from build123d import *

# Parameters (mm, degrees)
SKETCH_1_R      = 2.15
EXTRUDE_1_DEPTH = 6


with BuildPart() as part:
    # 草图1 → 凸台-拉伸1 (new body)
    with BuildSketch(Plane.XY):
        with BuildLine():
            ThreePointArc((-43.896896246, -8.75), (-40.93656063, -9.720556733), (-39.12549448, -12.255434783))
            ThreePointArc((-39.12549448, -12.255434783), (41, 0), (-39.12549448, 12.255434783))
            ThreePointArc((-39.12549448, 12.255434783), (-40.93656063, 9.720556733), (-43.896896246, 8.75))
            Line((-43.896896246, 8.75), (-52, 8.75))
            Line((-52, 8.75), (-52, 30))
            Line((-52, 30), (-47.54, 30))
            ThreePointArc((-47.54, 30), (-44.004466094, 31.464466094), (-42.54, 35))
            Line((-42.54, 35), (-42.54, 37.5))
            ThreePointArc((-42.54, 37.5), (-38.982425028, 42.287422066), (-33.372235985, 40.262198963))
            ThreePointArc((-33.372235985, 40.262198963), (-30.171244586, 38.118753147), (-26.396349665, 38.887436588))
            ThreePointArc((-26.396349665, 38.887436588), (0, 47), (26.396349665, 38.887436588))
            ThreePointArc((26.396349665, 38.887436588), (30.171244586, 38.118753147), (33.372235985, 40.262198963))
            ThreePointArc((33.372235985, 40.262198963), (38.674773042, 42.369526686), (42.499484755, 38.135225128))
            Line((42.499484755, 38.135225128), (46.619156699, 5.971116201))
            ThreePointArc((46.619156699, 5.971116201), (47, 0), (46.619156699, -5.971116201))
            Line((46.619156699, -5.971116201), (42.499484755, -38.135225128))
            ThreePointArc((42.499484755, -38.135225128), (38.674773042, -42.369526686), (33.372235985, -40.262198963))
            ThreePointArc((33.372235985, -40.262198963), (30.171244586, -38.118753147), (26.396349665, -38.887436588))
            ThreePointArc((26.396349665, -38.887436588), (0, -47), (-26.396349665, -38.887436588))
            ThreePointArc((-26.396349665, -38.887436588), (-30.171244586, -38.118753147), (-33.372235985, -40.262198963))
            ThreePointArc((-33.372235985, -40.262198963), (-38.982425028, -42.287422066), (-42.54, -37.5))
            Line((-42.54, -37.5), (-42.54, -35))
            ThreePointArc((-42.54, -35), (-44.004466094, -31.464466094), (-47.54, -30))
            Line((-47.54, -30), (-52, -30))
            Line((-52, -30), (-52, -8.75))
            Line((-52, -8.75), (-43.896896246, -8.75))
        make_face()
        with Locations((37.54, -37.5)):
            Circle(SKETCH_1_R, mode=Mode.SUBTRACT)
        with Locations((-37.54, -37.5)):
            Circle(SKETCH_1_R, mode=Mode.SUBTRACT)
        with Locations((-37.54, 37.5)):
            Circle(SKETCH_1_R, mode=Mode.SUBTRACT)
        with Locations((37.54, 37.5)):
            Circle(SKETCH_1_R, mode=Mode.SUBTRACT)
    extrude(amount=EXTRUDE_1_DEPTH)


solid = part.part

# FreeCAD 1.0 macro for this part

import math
import FreeCAD as App
import Part
import Sketcher

doc = App.newDocument("Part")
body = doc.addObject("PartDesign::Body", "Body")

sketch1 = body.newObject("Sketcher::SketchObject", "Sketch")
sketch1.AttachmentSupport = (doc.getObject("XY_Plane"), [""])
sketch1.MapMode = "FlatFace"
sketch1.addGeometry(Part.ArcOfCircle(Part.Circle(App.Vector(-43.9, -13.8, 0), App.Vector(0, 0, 1), 5), math.radians(17), math.radians(90)), False)
sketch1.addGeometry(Part.LineSegment(App.Vector(-43.9, -8.8, 0), App.Vector(-52, -8.8, 0)), False)
sketch1.addGeometry(Part.LineSegment(App.Vector(-52, -8.8, 0), App.Vector(-52, -30, 0)), False)
sketch1.addGeometry(Part.LineSegment(App.Vector(-52, -30, 0), App.Vector(-47.5, -30, 0)), False)
sketch1.addGeometry(Part.ArcOfCircle(Part.Circle(App.Vector(-47.5, -35, 0), App.Vector(0, 0, 1), 5), math.radians(0), math.radians(90)), False)
sketch1.addGeometry(Part.LineSegment(App.Vector(-42.5, -35, 0), App.Vector(-42.5, -37.5, 0)), False)
sketch1.addGeometry(Part.ArcOfCircle(Part.Circle(App.Vector(-37.5, -37.5, 0), App.Vector(0, 0, 1), 5), math.radians(180), math.radians(326)), False)
sketch1.addGeometry(Part.ArcOfCircle(Part.Circle(App.Vector(-29.2, -43, 0), App.Vector(0, 0, 1), 5), math.radians(56), math.radians(146)), False)
sketch1.addGeometry(Part.ArcOfCircle(Part.Circle(App.Vector(0, 0, 0), App.Vector(0, 0, 1), 47), math.radians(-124), math.radians(-56)), False)
sketch1.addGeometry(Part.ArcOfCircle(Part.Circle(App.Vector(29.2, -43, 0), App.Vector(0, 0, 1), 5), math.radians(34), math.radians(124)), False)
sketch1.addGeometry(Part.ArcOfCircle(Part.Circle(App.Vector(37.5, -37.5, 0), App.Vector(0, 0, 1), 5), math.radians(-146), math.radians(-7)), False)
sketch1.addGeometry(Part.LineSegment(App.Vector(42.5, -38.1, 0), App.Vector(46.6, -6, 0)), False)
sketch1.addGeometry(Part.ArcOfCircle(Part.Circle(App.Vector(0, 0, 0), App.Vector(0, 0, 1), 47), math.radians(-7.3), math.radians(7.3)), False)
sketch1.addGeometry(Part.LineSegment(App.Vector(46.6, 6, 0), App.Vector(42.5, 38.1, 0)), False)
sketch1.addGeometry(Part.ArcOfCircle(Part.Circle(App.Vector(37.5, 37.5, 0), App.Vector(0, 0, 1), 5), math.radians(7), math.radians(146)), False)
sketch1.addGeometry(Part.ArcOfCircle(Part.Circle(App.Vector(29.2, 43, 0), App.Vector(0, 0, 1), 5), math.radians(-124), math.radians(-34)), False)
sketch1.addGeometry(Part.ArcOfCircle(Part.Circle(App.Vector(0, 0, 0), App.Vector(0, 0, 1), 47), math.radians(56), math.radians(124)), False)
sketch1.addGeometry(Part.ArcOfCircle(Part.Circle(App.Vector(-29.2, 43, 0), App.Vector(0, 0, 1), 5), math.radians(-146), math.radians(-56)), False)
sketch1.addGeometry(Part.ArcOfCircle(Part.Circle(App.Vector(-37.5, 37.5, 0), App.Vector(0, 0, 1), 5), math.radians(34), math.radians(180)), False)
sketch1.addGeometry(Part.LineSegment(App.Vector(-42.5, 37.5, 0), App.Vector(-42.5, 35, 0)), False)
sketch1.addGeometry(Part.ArcOfCircle(Part.Circle(App.Vector(-47.5, 35, 0), App.Vector(0, 0, 1), 5), math.radians(-90), math.radians(0)), False)
sketch1.addGeometry(Part.LineSegment(App.Vector(-47.5, 30, 0), App.Vector(-52, 30, 0)), False)
sketch1.addGeometry(Part.LineSegment(App.Vector(-52, 30, 0), App.Vector(-52, 8.8, 0)), False)
sketch1.addGeometry(Part.LineSegment(App.Vector(-52, 8.8, 0), App.Vector(-43.9, 8.8, 0)), False)
sketch1.addGeometry(Part.ArcOfCircle(Part.Circle(App.Vector(-43.9, 13.8, 0), App.Vector(0, 0, 1), 5), math.radians(-90), math.radians(-17)), False)
sketch1.addGeometry(Part.ArcOfCircle(Part.Circle(App.Vector(0, 0, 0), App.Vector(0, 0, 1), 41), math.radians(-163), math.radians(163)), False)
sketch1.addGeometry(Part.Circle(App.Vector(37.5, -37.5, 0), App.Vector(0, 0, 1), 2.1), False)
sketch1.addGeometry(Part.Circle(App.Vector(-37.5, -37.5, 0), App.Vector(0, 0, 1), 2.1), False)
sketch1.addGeometry(Part.Circle(App.Vector(37.5, 37.5, 0), App.Vector(0, 0, 1), 2.1), False)
sketch1.addGeometry(Part.Circle(App.Vector(-37.5, 37.5, 0), App.Vector(0, 0, 1), 2.1), False)
sketch1.addConstraint(Sketcher.Constraint("Tangent", 0, 2, 1, 1))
sketch1.addConstraint(Sketcher.Constraint("Coincident", 1, 2, 2, 1))
sketch1.addConstraint(Sketcher.Constraint("Coincident", 2, 2, 3, 1))
sketch1.addConstraint(Sketcher.Constraint("Tangent", 3, 2, 4, 2))
sketch1.addConstraint(Sketcher.Constraint("Tangent", 4, 1, 5, 1))
sketch1.addConstraint(Sketcher.Constraint("Tangent", 5, 2, 6, 1))
sketch1.addConstraint(Sketcher.Constraint("Tangent", 6, 2, 7, 2))
sketch1.addConstraint(Sketcher.Constraint("Tangent", 7, 1, 8, 1))
sketch1.addConstraint(Sketcher.Constraint("Tangent", 8, 2, 9, 2))
sketch1.addConstraint(Sketcher.Constraint("Tangent", 9, 1, 10, 1))
sketch1.addConstraint(Sketcher.Constraint("Tangent", 10, 2, 11, 1))
sketch1.addConstraint(Sketcher.Constraint("Tangent", 11, 2, 12, 1))
sketch1.addConstraint(Sketcher.Constraint("Tangent", 12, 2, 13, 1))
sketch1.addConstraint(Sketcher.Constraint("Tangent", 13, 2, 14, 1))
sketch1.addConstraint(Sketcher.Constraint("Tangent", 14, 2, 15, 2))
sketch1.addConstraint(Sketcher.Constraint("Tangent", 15, 1, 16, 1))
sketch1.addConstraint(Sketcher.Constraint("Tangent", 16, 2, 17, 2))
sketch1.addConstraint(Sketcher.Constraint("Tangent", 17, 1, 18, 1))
sketch1.addConstraint(Sketcher.Constraint("Tangent", 18, 2, 19, 1))
sketch1.addConstraint(Sketcher.Constraint("Tangent", 19, 2, 20, 2))
sketch1.addConstraint(Sketcher.Constraint("Tangent", 20, 1, 21, 1))
sketch1.addConstraint(Sketcher.Constraint("Coincident", 21, 2, 22, 1))
sketch1.addConstraint(Sketcher.Constraint("Coincident", 22, 2, 23, 1))
sketch1.addConstraint(Sketcher.Constraint("Tangent", 23, 2, 24, 1))
sketch1.addConstraint(Sketcher.Constraint("Tangent", 24, 2, 25, 2))
sketch1.addConstraint(Sketcher.Constraint("Tangent", 25, 1, 0, 1))
sketch1.addConstraint(Sketcher.Constraint("Horizontal", 1))
sketch1.addConstraint(Sketcher.Constraint("Vertical", 2))
sketch1.addConstraint(Sketcher.Constraint("Horizontal", 3))
sketch1.addConstraint(Sketcher.Constraint("Vertical", 5))
sketch1.addConstraint(Sketcher.Constraint("Vertical", 19))
sketch1.addConstraint(Sketcher.Constraint("Horizontal", 21))
sketch1.addConstraint(Sketcher.Constraint("Vertical", 22))
sketch1.addConstraint(Sketcher.Constraint("Horizontal", 23))
sketch1.addConstraint(Sketcher.Constraint("Coincident", 8, 3, -1, 1))
sketch1.addConstraint(Sketcher.Constraint("Coincident", 12, 3, -1, 1))
sketch1.addConstraint(Sketcher.Constraint("Coincident", 16, 3, -1, 1))
sketch1.addConstraint(Sketcher.Constraint("Coincident", 25, 3, -1, 1))
sketch1.addConstraint(Sketcher.Constraint("Coincident", 26, 3, 10, 3))
sketch1.addConstraint(Sketcher.Constraint("Coincident", 27, 3, 6, 3))
sketch1.addConstraint(Sketcher.Constraint("Coincident", 28, 3, 14, 3))
sketch1.addConstraint(Sketcher.Constraint("Coincident", 29, 3, 18, 3))
sketch1.addConstraint(Sketcher.Constraint("Equal", 0, 4))
sketch1.addConstraint(Sketcher.Constraint("Equal", 4, 6))
sketch1.addConstraint(Sketcher.Constraint("Equal", 6, 7))
sketch1.addConstraint(Sketcher.Constraint("Equal", 7, 9))
sketch1.addConstraint(Sketcher.Constraint("Equal", 9, 10))
sketch1.addConstraint(Sketcher.Constraint("Equal", 8, 12))
sketch1.addConstraint(Sketcher.Constraint("Equal", 10, 14))
sketch1.addConstraint(Sketcher.Constraint("Equal", 14, 15))
sketch1.addConstraint(Sketcher.Constraint("Equal", 12, 16))
sketch1.addConstraint(Sketcher.Constraint("Equal", 15, 17))
sketch1.addConstraint(Sketcher.Constraint("Equal", 17, 18))
sketch1.addConstraint(Sketcher.Constraint("Equal", 18, 20))
sketch1.addConstraint(Sketcher.Constraint("Equal", 20, 24))
sketch1.addConstraint(Sketcher.Constraint("Equal", 26, 27))
sketch1.addConstraint(Sketcher.Constraint("Equal", 27, 28))
sketch1.addConstraint(Sketcher.Constraint("Equal", 28, 29))
sketch1.addConstraint(Sketcher.Constraint("Symmetric", 6, 3, 14, 3, -1, 1))
sketch1.addConstraint(Sketcher.Constraint("Symmetric", 10, 3, 18, 3, -1, 1))
sketch1.addConstraint(Sketcher.Constraint("Symmetric", 6, 3, 10, 3, -2))
sketch1.addConstraint(Sketcher.Constraint("Symmetric", 2, 2, 21, 2, -1))
sketch1.addConstraint(Sketcher.Constraint("Vertical", 0, 3, 24, 3))
sketch1.addConstraint(Sketcher.Constraint("Radius", 0, 5.0))
sketch1.addConstraint(Sketcher.Constraint("Radius", 8, 47.0))
sketch1.addConstraint(Sketcher.Constraint("Radius", 25, 41.0))
sketch1.addConstraint(Sketcher.Constraint("Diameter", 26, 4.3))
sketch1.addConstraint(Sketcher.Constraint("DistanceY", 5, 2, 5, 1, 2.5))
sketch1.addConstraint(Sketcher.Constraint("DistanceY", 4, 3, -1, 1, 35.0))
sketch1.addConstraint(Sketcher.Constraint("DistanceX", 1, 2, -1, 1, 52.0))
sketch1.addConstraint(Sketcher.Constraint("DistanceX", 3, 1, 3, 2, 4.46))
sketch1.addConstraint(Sketcher.Constraint("DistanceY", 2, 2, 2, 1, 21.25))
pad1 = body.newObject("PartDesign::Pad", "Pad")
pad1.Profile = sketch1
pad1.Length = 6

doc.recompute()
